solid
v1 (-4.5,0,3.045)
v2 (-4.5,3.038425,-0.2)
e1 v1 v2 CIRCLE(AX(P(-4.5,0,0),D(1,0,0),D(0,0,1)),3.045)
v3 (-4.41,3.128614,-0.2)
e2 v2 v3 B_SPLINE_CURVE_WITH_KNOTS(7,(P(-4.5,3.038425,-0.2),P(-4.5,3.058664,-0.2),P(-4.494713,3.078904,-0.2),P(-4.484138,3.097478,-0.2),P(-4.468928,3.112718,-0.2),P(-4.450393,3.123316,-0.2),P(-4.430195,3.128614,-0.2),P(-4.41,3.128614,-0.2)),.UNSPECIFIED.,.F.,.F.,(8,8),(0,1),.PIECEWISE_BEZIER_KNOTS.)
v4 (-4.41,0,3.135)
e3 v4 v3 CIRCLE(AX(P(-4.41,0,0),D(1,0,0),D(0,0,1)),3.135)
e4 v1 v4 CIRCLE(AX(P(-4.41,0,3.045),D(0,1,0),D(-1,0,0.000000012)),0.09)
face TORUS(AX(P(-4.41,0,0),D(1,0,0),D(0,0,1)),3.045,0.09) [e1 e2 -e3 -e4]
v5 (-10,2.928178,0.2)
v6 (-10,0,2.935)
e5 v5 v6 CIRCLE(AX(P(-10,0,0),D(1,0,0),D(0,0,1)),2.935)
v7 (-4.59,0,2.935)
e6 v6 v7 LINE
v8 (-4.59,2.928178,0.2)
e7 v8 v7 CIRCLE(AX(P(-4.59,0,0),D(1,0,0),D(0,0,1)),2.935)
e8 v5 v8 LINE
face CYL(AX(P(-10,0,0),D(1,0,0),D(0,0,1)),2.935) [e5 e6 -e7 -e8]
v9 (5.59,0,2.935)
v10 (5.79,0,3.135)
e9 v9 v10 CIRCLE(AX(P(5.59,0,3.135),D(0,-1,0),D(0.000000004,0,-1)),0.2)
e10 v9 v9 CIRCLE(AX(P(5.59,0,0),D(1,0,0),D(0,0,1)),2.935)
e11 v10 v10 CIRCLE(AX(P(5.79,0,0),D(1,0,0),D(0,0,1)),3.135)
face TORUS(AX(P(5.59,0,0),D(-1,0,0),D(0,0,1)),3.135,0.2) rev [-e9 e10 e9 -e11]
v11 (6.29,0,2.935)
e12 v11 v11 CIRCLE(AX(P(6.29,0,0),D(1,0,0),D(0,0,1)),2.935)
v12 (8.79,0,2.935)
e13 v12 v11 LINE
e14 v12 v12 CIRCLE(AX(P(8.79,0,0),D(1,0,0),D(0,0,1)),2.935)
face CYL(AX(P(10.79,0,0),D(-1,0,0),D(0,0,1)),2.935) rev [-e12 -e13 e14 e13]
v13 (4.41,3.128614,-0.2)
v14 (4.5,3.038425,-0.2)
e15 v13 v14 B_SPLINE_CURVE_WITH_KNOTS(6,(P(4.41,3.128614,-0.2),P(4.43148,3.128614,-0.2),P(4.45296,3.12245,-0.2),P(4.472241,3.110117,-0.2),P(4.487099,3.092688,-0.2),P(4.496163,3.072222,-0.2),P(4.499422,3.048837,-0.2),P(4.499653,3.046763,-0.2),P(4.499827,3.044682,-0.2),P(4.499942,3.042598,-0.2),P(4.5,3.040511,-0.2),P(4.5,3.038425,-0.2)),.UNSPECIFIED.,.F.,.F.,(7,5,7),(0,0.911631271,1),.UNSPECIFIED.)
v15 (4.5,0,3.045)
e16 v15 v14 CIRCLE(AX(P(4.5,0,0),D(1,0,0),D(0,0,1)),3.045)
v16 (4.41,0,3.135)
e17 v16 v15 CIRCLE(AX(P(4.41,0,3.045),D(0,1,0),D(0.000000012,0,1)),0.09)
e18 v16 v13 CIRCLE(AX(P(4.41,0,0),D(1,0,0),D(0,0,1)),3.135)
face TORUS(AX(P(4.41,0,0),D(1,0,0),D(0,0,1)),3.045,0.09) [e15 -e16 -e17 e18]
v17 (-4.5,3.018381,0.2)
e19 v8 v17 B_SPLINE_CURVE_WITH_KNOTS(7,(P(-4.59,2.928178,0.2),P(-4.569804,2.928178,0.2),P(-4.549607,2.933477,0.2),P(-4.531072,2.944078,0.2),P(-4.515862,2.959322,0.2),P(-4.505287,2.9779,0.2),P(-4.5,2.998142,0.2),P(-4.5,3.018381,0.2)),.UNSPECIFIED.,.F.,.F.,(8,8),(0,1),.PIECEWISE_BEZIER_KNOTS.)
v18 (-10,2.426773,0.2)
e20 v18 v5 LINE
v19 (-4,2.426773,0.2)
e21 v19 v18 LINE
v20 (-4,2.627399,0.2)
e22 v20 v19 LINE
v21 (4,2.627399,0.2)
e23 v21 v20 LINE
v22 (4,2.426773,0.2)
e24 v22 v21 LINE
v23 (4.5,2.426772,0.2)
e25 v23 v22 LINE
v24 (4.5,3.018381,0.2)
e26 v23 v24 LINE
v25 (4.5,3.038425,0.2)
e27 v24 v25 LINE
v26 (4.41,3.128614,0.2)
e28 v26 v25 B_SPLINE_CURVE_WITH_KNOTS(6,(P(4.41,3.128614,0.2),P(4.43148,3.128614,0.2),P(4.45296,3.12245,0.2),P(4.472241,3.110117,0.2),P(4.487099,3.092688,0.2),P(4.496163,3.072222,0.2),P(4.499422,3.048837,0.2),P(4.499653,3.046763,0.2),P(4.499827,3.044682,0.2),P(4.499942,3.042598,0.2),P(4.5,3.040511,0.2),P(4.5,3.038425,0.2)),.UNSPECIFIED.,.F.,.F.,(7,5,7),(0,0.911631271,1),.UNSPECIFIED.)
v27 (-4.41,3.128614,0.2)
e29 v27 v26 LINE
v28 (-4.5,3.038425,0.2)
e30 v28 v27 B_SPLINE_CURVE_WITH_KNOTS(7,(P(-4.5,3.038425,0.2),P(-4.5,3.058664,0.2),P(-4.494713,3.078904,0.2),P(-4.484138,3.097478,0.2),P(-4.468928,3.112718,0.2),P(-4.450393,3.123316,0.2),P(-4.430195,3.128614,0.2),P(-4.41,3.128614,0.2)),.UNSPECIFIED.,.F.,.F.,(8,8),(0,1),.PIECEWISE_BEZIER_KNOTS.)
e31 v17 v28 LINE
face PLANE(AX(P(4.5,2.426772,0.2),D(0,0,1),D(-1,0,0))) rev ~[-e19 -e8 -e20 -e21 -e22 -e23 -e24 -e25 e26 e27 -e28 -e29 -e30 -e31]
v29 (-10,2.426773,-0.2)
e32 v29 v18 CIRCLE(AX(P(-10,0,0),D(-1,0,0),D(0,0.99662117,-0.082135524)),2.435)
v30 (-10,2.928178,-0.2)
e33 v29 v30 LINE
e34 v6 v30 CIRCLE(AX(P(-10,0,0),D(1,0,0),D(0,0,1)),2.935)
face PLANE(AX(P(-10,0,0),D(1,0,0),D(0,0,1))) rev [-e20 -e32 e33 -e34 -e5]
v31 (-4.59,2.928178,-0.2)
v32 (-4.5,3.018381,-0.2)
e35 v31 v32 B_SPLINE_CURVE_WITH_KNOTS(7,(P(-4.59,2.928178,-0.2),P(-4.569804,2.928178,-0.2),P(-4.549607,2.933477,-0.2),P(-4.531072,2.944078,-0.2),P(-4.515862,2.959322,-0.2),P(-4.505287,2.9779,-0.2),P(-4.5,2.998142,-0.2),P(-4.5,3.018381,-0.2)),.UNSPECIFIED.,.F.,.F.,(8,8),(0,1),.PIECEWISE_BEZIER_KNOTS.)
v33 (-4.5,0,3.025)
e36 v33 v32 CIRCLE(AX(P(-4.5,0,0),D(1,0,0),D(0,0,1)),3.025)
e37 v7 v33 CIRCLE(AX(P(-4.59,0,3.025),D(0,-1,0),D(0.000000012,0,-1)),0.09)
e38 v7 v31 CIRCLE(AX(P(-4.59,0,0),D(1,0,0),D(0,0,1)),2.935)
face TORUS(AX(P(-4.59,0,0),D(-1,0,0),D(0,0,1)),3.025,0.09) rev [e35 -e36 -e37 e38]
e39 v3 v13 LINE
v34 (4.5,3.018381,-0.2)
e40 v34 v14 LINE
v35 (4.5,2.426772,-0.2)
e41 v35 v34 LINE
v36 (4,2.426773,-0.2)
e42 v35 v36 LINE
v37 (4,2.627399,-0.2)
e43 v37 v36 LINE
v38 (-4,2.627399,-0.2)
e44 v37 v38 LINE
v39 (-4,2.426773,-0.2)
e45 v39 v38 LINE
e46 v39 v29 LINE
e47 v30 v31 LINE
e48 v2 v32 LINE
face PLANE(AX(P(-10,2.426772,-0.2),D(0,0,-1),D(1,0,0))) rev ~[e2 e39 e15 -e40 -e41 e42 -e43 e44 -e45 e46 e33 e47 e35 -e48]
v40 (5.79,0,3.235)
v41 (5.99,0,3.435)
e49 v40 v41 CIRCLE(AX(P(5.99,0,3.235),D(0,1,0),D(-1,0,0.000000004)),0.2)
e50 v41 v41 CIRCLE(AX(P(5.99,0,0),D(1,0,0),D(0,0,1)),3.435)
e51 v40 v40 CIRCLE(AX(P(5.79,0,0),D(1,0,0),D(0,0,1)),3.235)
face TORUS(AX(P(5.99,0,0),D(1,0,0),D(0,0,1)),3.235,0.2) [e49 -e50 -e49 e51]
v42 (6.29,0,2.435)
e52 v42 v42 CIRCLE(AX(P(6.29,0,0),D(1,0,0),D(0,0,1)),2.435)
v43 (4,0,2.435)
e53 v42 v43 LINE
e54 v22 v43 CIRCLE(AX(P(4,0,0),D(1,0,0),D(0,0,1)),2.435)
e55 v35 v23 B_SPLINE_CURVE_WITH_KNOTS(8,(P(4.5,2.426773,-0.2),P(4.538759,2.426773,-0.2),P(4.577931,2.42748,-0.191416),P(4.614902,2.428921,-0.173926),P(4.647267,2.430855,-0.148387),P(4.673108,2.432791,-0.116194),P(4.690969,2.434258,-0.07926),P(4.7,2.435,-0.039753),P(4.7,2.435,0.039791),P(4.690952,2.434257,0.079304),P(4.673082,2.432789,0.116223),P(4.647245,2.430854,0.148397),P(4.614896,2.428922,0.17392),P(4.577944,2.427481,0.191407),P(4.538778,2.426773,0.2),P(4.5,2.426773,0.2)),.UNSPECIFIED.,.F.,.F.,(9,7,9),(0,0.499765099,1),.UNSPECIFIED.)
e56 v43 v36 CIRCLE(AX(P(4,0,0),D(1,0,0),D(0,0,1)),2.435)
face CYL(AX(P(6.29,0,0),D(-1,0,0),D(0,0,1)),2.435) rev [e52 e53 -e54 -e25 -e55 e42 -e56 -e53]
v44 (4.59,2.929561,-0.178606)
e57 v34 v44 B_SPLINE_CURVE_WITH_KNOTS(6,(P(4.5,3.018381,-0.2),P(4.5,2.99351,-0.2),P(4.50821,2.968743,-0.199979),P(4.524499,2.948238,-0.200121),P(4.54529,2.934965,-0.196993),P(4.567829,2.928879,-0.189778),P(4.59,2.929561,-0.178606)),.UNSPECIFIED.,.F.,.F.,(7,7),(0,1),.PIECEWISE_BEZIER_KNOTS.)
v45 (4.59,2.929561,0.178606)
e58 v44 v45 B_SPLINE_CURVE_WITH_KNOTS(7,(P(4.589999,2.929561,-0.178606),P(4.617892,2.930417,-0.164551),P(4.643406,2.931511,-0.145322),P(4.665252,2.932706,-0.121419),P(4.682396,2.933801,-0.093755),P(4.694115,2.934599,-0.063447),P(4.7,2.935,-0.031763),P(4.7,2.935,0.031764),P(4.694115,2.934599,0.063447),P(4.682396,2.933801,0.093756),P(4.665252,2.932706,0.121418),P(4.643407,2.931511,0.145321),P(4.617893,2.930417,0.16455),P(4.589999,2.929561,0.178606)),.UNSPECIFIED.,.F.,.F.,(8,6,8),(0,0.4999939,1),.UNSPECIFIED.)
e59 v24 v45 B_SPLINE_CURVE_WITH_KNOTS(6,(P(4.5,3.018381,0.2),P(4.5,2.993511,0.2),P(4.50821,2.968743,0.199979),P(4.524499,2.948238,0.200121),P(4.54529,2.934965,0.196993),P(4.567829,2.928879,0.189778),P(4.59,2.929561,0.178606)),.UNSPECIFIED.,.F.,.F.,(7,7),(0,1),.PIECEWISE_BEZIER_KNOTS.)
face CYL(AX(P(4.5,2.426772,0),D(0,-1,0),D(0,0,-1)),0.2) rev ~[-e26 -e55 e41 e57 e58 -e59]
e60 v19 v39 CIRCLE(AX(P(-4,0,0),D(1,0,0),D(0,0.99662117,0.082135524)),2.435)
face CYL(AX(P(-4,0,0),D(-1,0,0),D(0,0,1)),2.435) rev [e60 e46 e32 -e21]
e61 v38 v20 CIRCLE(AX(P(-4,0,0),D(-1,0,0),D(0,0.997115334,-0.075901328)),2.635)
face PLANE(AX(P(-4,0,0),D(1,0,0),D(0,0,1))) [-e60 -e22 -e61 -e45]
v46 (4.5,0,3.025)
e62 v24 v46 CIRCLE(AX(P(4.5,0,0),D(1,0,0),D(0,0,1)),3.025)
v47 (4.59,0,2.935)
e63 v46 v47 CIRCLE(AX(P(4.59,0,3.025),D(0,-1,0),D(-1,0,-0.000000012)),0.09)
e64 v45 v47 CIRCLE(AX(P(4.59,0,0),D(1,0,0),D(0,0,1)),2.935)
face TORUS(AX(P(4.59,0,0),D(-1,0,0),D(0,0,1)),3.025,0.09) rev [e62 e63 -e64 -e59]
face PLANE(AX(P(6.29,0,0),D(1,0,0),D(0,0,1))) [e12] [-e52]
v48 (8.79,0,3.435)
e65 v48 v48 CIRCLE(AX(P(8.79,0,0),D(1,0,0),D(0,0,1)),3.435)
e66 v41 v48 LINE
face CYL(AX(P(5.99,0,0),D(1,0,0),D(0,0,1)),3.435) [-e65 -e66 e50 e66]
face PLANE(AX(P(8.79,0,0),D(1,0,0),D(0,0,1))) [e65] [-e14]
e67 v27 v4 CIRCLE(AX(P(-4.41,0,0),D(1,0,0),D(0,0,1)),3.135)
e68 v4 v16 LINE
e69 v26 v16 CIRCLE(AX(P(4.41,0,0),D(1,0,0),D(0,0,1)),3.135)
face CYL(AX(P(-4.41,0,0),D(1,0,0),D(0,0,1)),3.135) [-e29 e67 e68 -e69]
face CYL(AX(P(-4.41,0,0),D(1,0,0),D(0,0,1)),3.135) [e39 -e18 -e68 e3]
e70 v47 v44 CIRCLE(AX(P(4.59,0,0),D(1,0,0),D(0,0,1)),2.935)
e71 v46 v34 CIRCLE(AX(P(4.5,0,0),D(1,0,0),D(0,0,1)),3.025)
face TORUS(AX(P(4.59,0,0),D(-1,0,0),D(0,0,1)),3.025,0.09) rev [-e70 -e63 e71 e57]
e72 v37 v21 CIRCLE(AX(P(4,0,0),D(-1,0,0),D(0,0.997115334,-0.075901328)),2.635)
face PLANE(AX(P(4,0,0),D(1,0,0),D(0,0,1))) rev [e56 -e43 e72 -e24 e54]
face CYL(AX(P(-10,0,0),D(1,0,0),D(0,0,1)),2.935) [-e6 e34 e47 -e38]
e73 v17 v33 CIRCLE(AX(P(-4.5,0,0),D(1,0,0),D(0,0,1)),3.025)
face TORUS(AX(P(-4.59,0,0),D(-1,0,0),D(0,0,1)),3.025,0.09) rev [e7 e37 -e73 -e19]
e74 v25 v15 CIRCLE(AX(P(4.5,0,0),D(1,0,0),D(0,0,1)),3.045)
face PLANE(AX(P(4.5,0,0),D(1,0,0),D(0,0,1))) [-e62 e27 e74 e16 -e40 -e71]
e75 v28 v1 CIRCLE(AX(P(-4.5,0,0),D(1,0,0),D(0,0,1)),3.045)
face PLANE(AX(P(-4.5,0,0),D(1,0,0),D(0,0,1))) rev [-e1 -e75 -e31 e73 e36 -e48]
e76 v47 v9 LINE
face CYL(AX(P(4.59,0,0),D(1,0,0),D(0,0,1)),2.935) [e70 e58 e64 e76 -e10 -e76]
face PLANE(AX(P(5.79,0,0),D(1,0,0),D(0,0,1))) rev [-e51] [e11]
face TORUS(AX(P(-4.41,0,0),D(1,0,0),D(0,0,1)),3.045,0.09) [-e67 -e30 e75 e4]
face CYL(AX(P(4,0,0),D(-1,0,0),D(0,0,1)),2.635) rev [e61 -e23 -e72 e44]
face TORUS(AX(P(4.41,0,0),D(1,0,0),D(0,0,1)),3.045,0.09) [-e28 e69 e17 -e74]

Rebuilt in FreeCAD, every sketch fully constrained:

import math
import FreeCAD as App
import Part
import Sketcher
Q = App.Units.Quantity

doc = App.newDocument("Part")
body = doc.addObject("PartDesign::Body", "Body")

sketch1 = body.newObject("Sketcher::SketchObject", "Sketch")
sketch1.AttachmentSupport = (doc.getObject("XY_Plane"), [""])
sketch1.MapMode = "FlatFace"
sketch1.addGeometry([
    Part.LineSegment(App.Vector(6.29, 2.935, 0), App.Vector(10.79, 2.935, 0)),
    Part.LineSegment(App.Vector(10.79, 2.935, 0), App.Vector(10.79, 3.435, 0)),
    Part.LineSegment(App.Vector(10.79, 3.435, 0), App.Vector(5.99, 3.435, 0)),
    Part.ArcOfCircle(Part.Circle(App.Vector(5.99, 3.235, 0), App.Vector(0, 0, 1), 0.2), math.radians(90), math.radians(180)),
    Part.LineSegment(App.Vector(5.79, 3.235, 0), App.Vector(5.79, 3.135, 0)),
    Part.ArcOfCircle(Part.Circle(App.Vector(5.59, 3.135, 0), App.Vector(0, 0, 1), 0.2), math.radians(-90), math.radians(0)),
    Part.LineSegment(App.Vector(5.59, 2.935, 0), App.Vector(4.59, 2.935, 0)),
    Part.ArcOfCircle(Part.Circle(App.Vector(4.59, 3.025, 0), App.Vector(0, 0, 1), 0.09), math.radians(-179.999999), math.radians(-90.000001)),
    Part.LineSegment(App.Vector(4.5, 3.025, 0), App.Vector(4.5, 3.045, 0)),
    Part.ArcOfCircle(Part.Circle(App.Vector(4.41, 3.045, 0), App.Vector(0, 0, 1), 0.09), math.radians(0.000001), math.radians(89.999999)),
    Part.LineSegment(App.Vector(4.41, 3.135, 0), App.Vector(-4.41, 3.135, 0)),
    Part.ArcOfCircle(Part.Circle(App.Vector(-4.41, 3.045, 0), App.Vector(0, 0, 1), 0.09), math.radians(90.000001), math.radians(179.999999)),
    Part.LineSegment(App.Vector(-4.5, 3.045, 0), App.Vector(-4.5, 3.025, 0)),
    Part.ArcOfCircle(Part.Circle(App.Vector(-4.59, 3.025, 0), App.Vector(0, 0, 1), 0.09), math.radians(-89.999999), math.radians(-0.000001)),
    Part.LineSegment(App.Vector(-4.59, 2.935, 0), App.Vector(-10, 2.935, 0)),
    Part.LineSegment(App.Vector(-10, 2.935, 0), App.Vector(-10, 2.435, 0)),
    Part.LineSegment(App.Vector(-10, 2.435, 0), App.Vector(-4, 2.435, 0)),
    Part.LineSegment(App.Vector(-4, 2.435, 0), App.Vector(-4, 2.635, 0)),
    Part.LineSegment(App.Vector(-4, 2.635, 0), App.Vector(4, 2.635, 0)),
    Part.LineSegment(App.Vector(4, 2.635, 0), App.Vector(4, 2.435, 0)),
    Part.LineSegment(App.Vector(4, 2.435, 0), App.Vector(6.29, 2.435, 0)),
    Part.LineSegment(App.Vector(6.29, 2.435, 0), App.Vector(6.29, 2.935, 0)),
], False)
sketch1.addConstraint([
    Sketcher.Constraint("Coincident", 0, 2, 1, 1),
    Sketcher.Constraint("Coincident", 1, 2, 2, 1),
    Sketcher.Constraint("Tangent", 2, 2, 3, 1),
    Sketcher.Constraint("Tangent", 3, 2, 4, 1),
    Sketcher.Constraint("Tangent", 4, 2, 5, 2),
    Sketcher.Constraint("Tangent", 5, 1, 6, 1),
    Sketcher.Constraint("Tangent", 6, 2, 7, 2),
    Sketcher.Constraint("Tangent", 7, 1, 8, 1),
    Sketcher.Constraint("Tangent", 8, 2, 9, 1),
    Sketcher.Constraint("Tangent", 9, 2, 10, 1),
    Sketcher.Constraint("Tangent", 10, 2, 11, 1),
    Sketcher.Constraint("Tangent", 11, 2, 12, 1),
    Sketcher.Constraint("Tangent", 12, 2, 13, 2),
    Sketcher.Constraint("Tangent", 13, 1, 14, 1),
    Sketcher.Constraint("Coincident", 14, 2, 15, 1),
    Sketcher.Constraint("Coincident", 15, 2, 16, 1),
    Sketcher.Constraint("Coincident", 16, 2, 17, 1),
    Sketcher.Constraint("Coincident", 17, 2, 18, 1),
    Sketcher.Constraint("Coincident", 18, 2, 19, 1),
    Sketcher.Constraint("Coincident", 19, 2, 20, 1),
    Sketcher.Constraint("Coincident", 20, 2, 21, 1),
    Sketcher.Constraint("Coincident", 21, 2, 0, 1),
    Sketcher.Constraint("Horizontal", 0),
    Sketcher.Constraint("Vertical", 1),
    Sketcher.Constraint("Horizontal", 2),
    Sketcher.Constraint("Vertical", 4),
    Sketcher.Constraint("Horizontal", 6),
    Sketcher.Constraint("Vertical", 8),
    Sketcher.Constraint("Horizontal", 10),
    Sketcher.Constraint("Vertical", 12),
    Sketcher.Constraint("Horizontal", 14),
    Sketcher.Constraint("Vertical", 15),
    Sketcher.Constraint("Horizontal", 16),
    Sketcher.Constraint("Vertical", 17),
    Sketcher.Constraint("Horizontal", 18),
    Sketcher.Constraint("Vertical", 19),
    Sketcher.Constraint("Horizontal", 20),
    Sketcher.Constraint("Vertical", 21),
    Sketcher.Constraint("Equal", 3, 5),
    Sketcher.Constraint("Equal", 7, 9),
    Sketcher.Constraint("Equal", 9, 11),
    Sketcher.Constraint("Equal", 11, 13),
    Sketcher.Constraint("Symmetric", 7, 3, 13, 3, -2),
    Sketcher.Constraint("Symmetric", 16, 2, 19, 2, -2),
    Sketcher.Constraint("Horizontal", 0, 2, 5, 1),
    Sketcher.Constraint("Horizontal", 4, 2, 9, 2),
    Sketcher.Constraint("Equal", 1, 15),
    Sketcher.Constraint("Radius", 3, Q("0.2 mm")),
    Sketcher.Constraint("DistanceX", 6, 2, 6, 1, Q("1 mm")),
    Sketcher.Constraint("DistanceX", 16, 1, 16, 2, Q("6 mm")),
    Sketcher.Constraint("DistanceX", 18, 1, 18, 2, Q("8 mm")),
    Sketcher.Constraint("Radius", 7, Q("0.09 mm")),
    Sketcher.Constraint("DistanceX", 0, 1, 0, 2, Q("4.5 mm")),
    Sketcher.Constraint("DistanceX", 2, 2, 2, 1, Q("4.8 mm")),
    Sketcher.Constraint("DistanceY", 1, 1, 1, 2, Q("0.5 mm")),
    Sketcher.Constraint("DistanceY", 17, 1, 17, 2, Q("0.2 mm")),
    Sketcher.Constraint("DistanceX", 11, 3, 7, 3, Q("9 mm")),
    Sketcher.Constraint("DistanceY", -1, 1, 3, 3, Q("3.235 mm")),
])
revolution = body.newObject("PartDesign::Revolution", "Revolution")
revolution.Profile = sketch1
revolution.ReferenceAxis = (sketch1, ["H_Axis"])
revolution.Angle = 360

sketch2 = body.newObject("Sketcher::SketchObject", "Sketch001")
sketch2.AttachmentSupport = (doc.getObject("XZ_Plane"), [""])
sketch2.MapMode = "FlatFace"
sketch2.AttachmentOffset = App.Placement(App.Vector(0, 0, -2.426772), App.Rotation())
sketch2.addGeometry([
    Part.LineSegment(App.Vector(4.5, -0.2, 0), App.Vector(-10, -0.2, 0)),
    Part.LineSegment(App.Vector(-10, -0.2, 0), App.Vector(-10, 0.2, 0)),
    Part.LineSegment(App.Vector(-10, 0.2, 0), App.Vector(4.5, 0.2, 0)),
    Part.ArcOfCircle(Part.Circle(App.Vector(4.5, 0, 0), App.Vector(0, 0, 1), 0.2), math.radians(-90), math.radians(90)),
], False)
sketch2.addConstraint([
    Sketcher.Constraint("Coincident", 0, 2, 1, 1),
    Sketcher.Constraint("Coincident", 1, 2, 2, 1),
    Sketcher.Constraint("Tangent", 2, 2, 3, 2),
    Sketcher.Constraint("Tangent", 3, 1, 0, 1),
    Sketcher.Constraint("Horizontal", 0),
    Sketcher.Constraint("Vertical", 1),
    Sketcher.Constraint("Horizontal", 2),
    Sketcher.Constraint("PointOnObject", 3, 3, -1),
    Sketcher.Constraint("Radius", 3, Q("0.2 mm")),
    Sketcher.Constraint("DistanceX", 0, 2, 0, 1, Q("14.5 mm")),
    Sketcher.Constraint("DistanceX", 0, 2, -1, 1, Q("10 mm")),
])
pocket1 = body.newObject("PartDesign::Pocket", "Pocket")
pocket1.Profile = sketch2
pocket1.Length = 0.708228

sketch3 = body.newObject("Sketcher::SketchObject", "Sketch002")
sketch3.AttachmentSupport = (doc.getObject("YZ_Plane"), [""])
sketch3.MapMode = "FlatFace"
sketch3.AttachmentOffset = App.Placement(App.Vector(0, 0, 10.79), App.Rotation())
sketch3.addGeometry([
    Part.Circle(App.Vector(0, 0, 0), App.Vector(0, 0, 1), 3.435),
    Part.Circle(App.Vector(0, 0, 0), App.Vector(0, 0, 1), 2.935),
], False)
sketch3.addConstraint([
    Sketcher.Constraint("Coincident", 0, 3, -1, 1),
    Sketcher.Constraint("Coincident", 1, 3, -1, 1),
    Sketcher.Constraint("Diameter", 0, Q("6.87 mm")),
    Sketcher.Constraint("Diameter", 1, Q("5.87 mm")),
])
pocket2 = body.newObject("PartDesign::Pocket", "Pocket001")
pocket2.Profile = sketch3
pocket2.Length = 2

doc.recompute()
